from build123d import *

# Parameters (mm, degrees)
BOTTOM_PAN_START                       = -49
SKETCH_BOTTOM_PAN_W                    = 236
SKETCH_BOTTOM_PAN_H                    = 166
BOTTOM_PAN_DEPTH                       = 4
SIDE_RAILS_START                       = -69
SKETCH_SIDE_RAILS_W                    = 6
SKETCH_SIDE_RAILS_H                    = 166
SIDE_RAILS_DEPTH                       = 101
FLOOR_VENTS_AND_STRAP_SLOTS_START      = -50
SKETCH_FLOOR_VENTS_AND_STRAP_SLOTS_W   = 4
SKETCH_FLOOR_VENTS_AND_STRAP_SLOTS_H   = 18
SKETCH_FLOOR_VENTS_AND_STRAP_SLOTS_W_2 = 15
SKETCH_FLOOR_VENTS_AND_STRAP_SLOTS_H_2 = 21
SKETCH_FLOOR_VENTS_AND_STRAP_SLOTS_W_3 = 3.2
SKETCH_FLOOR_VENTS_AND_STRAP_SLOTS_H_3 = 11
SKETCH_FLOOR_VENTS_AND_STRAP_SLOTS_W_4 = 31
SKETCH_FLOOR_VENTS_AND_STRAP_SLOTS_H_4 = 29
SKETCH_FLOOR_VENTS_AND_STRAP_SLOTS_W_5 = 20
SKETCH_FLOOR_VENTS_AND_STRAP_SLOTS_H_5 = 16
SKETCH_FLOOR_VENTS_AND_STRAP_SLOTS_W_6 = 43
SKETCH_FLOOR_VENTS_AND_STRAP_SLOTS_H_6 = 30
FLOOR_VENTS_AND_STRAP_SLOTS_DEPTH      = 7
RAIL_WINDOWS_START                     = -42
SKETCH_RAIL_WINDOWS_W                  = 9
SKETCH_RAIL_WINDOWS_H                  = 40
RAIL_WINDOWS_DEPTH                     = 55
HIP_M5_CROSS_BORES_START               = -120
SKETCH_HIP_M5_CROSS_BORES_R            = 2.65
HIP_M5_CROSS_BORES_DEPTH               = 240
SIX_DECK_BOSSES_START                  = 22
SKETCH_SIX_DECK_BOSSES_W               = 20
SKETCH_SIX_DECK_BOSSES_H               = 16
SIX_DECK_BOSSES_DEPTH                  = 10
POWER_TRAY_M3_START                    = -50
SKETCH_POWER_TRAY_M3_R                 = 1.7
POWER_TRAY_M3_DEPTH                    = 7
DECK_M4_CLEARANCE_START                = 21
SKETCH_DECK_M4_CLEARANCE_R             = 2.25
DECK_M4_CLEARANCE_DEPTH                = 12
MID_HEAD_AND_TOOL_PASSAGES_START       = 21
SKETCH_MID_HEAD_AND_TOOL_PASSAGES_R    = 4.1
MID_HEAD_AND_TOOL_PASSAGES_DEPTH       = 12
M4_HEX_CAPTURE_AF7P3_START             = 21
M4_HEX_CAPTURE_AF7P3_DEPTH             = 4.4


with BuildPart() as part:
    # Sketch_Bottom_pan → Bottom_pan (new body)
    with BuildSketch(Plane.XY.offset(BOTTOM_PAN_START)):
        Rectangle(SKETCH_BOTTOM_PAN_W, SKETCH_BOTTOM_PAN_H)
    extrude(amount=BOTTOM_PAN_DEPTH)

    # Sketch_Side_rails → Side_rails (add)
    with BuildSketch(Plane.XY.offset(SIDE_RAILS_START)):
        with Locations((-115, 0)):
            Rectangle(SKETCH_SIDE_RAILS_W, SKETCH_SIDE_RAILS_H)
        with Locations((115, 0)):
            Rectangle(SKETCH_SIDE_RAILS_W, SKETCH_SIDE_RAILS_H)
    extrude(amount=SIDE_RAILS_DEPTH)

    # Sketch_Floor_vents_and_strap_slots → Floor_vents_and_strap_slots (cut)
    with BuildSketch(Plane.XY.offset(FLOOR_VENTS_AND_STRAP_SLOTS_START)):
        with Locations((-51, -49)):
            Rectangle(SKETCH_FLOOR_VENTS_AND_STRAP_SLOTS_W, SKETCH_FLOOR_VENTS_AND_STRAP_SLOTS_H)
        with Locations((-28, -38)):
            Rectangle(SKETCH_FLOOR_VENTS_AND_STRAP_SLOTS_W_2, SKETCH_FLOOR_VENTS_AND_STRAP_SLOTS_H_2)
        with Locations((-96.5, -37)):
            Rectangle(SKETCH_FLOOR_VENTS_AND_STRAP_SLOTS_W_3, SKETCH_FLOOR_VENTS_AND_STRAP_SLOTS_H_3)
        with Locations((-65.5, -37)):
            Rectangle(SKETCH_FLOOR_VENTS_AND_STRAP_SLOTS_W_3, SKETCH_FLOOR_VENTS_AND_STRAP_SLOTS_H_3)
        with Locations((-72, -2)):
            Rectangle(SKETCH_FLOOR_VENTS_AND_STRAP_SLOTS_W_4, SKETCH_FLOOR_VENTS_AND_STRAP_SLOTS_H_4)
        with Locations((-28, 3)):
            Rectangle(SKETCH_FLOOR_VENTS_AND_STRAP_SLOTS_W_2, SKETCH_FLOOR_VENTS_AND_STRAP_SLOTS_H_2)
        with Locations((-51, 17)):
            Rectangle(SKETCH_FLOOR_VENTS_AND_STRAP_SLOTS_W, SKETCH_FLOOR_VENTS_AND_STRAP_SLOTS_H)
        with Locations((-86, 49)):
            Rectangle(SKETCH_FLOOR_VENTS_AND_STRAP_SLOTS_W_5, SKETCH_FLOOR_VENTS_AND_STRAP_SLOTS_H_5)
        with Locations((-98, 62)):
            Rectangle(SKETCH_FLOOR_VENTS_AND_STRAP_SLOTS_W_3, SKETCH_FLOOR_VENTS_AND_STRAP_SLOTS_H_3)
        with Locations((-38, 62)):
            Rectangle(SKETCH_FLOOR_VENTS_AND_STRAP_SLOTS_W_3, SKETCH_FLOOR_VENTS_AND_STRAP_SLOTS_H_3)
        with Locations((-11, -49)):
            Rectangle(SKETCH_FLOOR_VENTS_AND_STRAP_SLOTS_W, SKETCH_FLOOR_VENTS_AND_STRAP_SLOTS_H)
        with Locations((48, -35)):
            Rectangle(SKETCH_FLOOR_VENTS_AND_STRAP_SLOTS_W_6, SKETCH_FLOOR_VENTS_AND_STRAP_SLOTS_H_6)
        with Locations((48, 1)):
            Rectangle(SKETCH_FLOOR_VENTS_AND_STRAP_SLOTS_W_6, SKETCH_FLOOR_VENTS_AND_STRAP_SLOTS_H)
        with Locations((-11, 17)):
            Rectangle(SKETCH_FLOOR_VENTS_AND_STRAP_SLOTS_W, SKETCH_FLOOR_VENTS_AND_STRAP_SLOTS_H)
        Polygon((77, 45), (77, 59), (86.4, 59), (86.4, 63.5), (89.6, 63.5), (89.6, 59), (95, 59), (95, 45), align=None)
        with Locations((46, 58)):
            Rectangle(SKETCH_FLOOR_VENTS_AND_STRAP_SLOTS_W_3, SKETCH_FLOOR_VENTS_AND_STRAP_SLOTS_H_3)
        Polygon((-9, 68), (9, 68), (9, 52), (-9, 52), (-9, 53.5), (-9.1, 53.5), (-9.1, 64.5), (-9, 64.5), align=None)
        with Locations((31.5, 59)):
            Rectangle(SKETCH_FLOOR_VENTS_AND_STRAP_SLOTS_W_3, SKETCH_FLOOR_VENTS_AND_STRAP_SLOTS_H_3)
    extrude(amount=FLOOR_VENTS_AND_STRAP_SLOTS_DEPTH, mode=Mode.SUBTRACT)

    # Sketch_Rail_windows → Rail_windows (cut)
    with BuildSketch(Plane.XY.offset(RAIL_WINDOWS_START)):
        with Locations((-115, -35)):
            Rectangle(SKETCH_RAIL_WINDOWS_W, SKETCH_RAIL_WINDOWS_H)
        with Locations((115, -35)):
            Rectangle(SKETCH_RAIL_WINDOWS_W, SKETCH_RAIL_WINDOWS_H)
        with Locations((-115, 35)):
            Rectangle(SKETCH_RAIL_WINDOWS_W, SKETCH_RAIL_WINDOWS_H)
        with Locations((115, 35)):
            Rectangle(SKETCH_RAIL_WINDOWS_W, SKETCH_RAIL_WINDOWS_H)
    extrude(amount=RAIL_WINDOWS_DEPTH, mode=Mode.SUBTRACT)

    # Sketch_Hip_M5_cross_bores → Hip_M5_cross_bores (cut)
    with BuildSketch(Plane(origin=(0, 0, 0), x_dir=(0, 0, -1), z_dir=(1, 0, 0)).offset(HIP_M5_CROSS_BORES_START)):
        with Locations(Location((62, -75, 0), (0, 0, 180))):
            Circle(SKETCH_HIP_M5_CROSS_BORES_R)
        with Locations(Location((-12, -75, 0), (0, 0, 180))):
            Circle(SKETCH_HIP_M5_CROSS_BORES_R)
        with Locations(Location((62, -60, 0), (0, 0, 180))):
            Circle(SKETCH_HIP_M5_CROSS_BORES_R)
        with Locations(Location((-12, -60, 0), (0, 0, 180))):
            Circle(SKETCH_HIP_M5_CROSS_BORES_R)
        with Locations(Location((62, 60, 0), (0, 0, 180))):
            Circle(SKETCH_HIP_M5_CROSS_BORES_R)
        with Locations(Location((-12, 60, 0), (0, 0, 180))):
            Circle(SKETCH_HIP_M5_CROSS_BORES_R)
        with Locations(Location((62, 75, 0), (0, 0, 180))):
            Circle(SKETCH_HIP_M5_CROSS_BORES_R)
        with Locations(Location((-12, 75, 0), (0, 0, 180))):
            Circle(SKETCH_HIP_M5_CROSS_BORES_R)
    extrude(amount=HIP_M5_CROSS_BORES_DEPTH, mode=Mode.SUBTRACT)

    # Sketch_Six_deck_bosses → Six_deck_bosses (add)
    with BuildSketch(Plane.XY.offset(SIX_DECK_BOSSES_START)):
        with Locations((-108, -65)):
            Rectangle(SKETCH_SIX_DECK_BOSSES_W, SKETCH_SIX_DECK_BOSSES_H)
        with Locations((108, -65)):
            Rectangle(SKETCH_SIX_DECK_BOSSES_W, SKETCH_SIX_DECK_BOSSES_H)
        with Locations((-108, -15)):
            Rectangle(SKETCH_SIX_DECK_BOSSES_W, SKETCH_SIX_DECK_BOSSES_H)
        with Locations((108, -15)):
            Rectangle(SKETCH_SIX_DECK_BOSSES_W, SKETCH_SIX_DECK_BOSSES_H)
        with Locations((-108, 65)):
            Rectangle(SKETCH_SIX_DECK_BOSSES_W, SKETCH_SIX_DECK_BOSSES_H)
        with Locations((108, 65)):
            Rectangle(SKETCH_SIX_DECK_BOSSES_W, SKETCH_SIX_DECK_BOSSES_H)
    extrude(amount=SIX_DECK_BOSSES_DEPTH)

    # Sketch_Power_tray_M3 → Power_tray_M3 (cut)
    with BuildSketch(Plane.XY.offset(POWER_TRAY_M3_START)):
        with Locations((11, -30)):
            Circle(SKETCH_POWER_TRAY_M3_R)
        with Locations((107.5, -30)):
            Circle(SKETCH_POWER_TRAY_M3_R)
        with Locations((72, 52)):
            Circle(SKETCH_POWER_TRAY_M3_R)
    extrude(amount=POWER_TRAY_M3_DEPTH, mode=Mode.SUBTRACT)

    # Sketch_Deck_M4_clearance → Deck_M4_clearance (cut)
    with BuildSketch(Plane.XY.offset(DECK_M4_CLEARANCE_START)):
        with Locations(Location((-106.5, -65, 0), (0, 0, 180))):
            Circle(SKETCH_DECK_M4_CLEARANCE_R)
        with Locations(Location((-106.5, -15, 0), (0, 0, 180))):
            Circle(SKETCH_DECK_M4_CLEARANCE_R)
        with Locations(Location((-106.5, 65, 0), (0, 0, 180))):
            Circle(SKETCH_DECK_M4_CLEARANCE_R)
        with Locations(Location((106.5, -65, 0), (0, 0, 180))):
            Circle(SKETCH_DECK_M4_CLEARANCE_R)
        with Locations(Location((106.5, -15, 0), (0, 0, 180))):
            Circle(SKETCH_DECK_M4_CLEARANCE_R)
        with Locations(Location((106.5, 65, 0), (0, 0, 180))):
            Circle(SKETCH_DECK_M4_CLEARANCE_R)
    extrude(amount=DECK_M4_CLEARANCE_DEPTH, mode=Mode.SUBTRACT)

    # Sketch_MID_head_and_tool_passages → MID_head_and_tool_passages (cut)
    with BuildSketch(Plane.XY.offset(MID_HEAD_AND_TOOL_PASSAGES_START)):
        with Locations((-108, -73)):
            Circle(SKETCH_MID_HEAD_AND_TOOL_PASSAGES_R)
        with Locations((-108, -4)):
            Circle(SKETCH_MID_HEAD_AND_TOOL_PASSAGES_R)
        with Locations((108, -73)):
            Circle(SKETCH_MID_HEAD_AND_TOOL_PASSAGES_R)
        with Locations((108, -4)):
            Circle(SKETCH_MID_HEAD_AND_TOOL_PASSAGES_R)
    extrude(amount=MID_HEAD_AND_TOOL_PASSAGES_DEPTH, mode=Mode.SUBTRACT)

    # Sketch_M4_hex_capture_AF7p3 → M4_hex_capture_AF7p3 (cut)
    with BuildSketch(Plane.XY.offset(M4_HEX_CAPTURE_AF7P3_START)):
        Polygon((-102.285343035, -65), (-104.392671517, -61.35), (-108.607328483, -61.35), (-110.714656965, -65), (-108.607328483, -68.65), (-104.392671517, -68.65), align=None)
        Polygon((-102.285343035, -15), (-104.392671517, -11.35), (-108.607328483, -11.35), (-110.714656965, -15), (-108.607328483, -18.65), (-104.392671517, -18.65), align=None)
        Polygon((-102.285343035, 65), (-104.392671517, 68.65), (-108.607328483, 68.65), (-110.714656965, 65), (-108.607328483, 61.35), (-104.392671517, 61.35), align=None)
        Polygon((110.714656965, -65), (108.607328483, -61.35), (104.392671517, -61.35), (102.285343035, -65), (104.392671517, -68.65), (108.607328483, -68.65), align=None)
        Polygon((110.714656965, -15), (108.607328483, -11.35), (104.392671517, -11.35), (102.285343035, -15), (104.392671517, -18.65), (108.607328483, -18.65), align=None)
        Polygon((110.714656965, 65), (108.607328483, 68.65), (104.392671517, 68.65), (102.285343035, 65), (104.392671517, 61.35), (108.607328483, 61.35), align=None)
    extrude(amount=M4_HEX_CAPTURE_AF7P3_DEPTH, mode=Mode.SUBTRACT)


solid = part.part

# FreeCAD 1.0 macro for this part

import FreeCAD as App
import Part
import Sketcher

V = App.Vector
Q = App.Units.Quantity


def add_polygon(sketch, points):
    """Adds a closed chain of lines whose ends are joined by coincident constraints."""
    first, n = sketch.GeometryCount, len(points)
    for a, b in zip(points, points[1:] + points[:1]):
        sketch.addGeometry(Part.LineSegment(App.Vector(*a, 0), App.Vector(*b, 0)), False)
    for i in range(n):
        sketch.addConstraint(Sketcher.Constraint("Coincident", first + i, 2, first + (i + 1) % n, 1))

doc = App.newDocument("Part")
body = doc.addObject("PartDesign::Body", "Body")

sketch1 = body.newObject("Sketcher::SketchObject", "Sketch")
sketch1.AttachmentSupport = (doc.getObject("XY_Plane"), [""])
sketch1.MapMode = "FlatFace"
sketch1.AttachmentOffset = App.Placement(V(0, 0, -49), App.Rotation())
add_polygon(sketch1, [(-118, 83), (-118, -83), (118, -83), (118, 83)])
sketch1.addConstraint([
    Sketcher.Constraint("Vertical", 0),
    Sketcher.Constraint("Horizontal", 1),
    Sketcher.Constraint("Vertical", 2),
    Sketcher.Constraint("Horizontal", 3),
    Sketcher.Constraint("Symmetric", 0, 2, 2, 2, -1, 1),
    Sketcher.Constraint("DistanceX", 1, 1, 1, 2, Q("236 mm")),
    Sketcher.Constraint("DistanceY", 0, 2, 0, 1, Q("166 mm")),
])
pad1 = body.newObject("PartDesign::Pad", "Pad")
pad1.Profile = sketch1
pad1.Length = 4

sketch2 = body.newObject("Sketcher::SketchObject", "Sketch001")
sketch2.AttachmentSupport = (doc.getObject("XY_Plane"), [""])
sketch2.MapMode = "FlatFace"
sketch2.AttachmentOffset = App.Placement(V(0, 0, -69), App.Rotation())
add_polygon(sketch2, [(-118, 83), (-118, -83), (-112, -83), (-112, 83)])
add_polygon(sketch2, [(112, 83), (112, -83), (118, -83), (118, 83)])
sketch2.addConstraint([
    Sketcher.Constraint("Vertical", 0),
    Sketcher.Constraint("Horizontal", 1),
    Sketcher.Constraint("Vertical", 2),
    Sketcher.Constraint("Horizontal", 3),
    Sketcher.Constraint("Vertical", 4),
    Sketcher.Constraint("Horizontal", 5),
    Sketcher.Constraint("Vertical", 6),
    Sketcher.Constraint("Horizontal", 7),
    Sketcher.Constraint("Symmetric", 2, 2, 4, 2, -1, 1),
    Sketcher.Constraint("Symmetric", 0, 2, 6, 2, -1, 1),
    Sketcher.Constraint("Horizontal", 1, 2, 4, 2),
    Sketcher.Constraint("DistanceX", 1, 1, 1, 2, Q("6 mm")),
    Sketcher.Constraint("DistanceY", 0, 2, 0, 1, Q("166 mm")),
    Sketcher.Constraint("DistanceX", 0, 2, -1, 1, Q("118 mm")),
])
pad2 = body.newObject("PartDesign::Pad", "Pad001")
pad2.Profile = sketch2
pad2.Length = 101

sketch3 = body.newObject("Sketcher::SketchObject", "Sketch002")
sketch3.AttachmentSupport = (doc.getObject("XY_Plane"), [""])
sketch3.MapMode = "FlatFace"
sketch3.AttachmentOffset = App.Placement(V(0, 0, -50), App.Rotation())
add_polygon(sketch3, [(-53, -40), (-53, -58), (-49, -58), (-49, -40)])
add_polygon(sketch3, [(-35.5, -27.5), (-35.5, -48.5), (-20.5, -48.5), (-20.5, -27.5)])
add_polygon(sketch3, [(-98.1, -31.5), (-98.1, -42.5), (-94.9, -42.5), (-94.9, -31.5)])
add_polygon(sketch3, [(-67.1, -31.5), (-67.1, -42.5), (-63.9, -42.5), (-63.9, -31.5)])
add_polygon(sketch3, [(-87.5, 12.5), (-87.5, -16.5), (-56.5, -16.5), (-56.5, 12.5)])
add_polygon(sketch3, [(-35.5, 13.5), (-35.5, -7.5), (-20.5, -7.5), (-20.5, 13.5)])
add_polygon(sketch3, [(-53, 26), (-53, 8), (-49, 8), (-49, 26)])
add_polygon(sketch3, [(-96, 57), (-96, 41), (-76, 41), (-76, 57)])
add_polygon(sketch3, [(-99.6, 67.5), (-99.6, 56.5), (-96.4, 56.5), (-96.4, 67.5)])
add_polygon(sketch3, [(-39.6, 67.5), (-39.6, 56.5), (-36.4, 56.5), (-36.4, 67.5)])
add_polygon(sketch3, [(-13, -40), (-13, -58), (-9, -58), (-9, -40)])
add_polygon(sketch3, [(26.5, -20), (26.5, -50), (69.5, -50), (69.5, -20)])
add_polygon(sketch3, [(26.5, 10), (26.5, -8), (69.5, -8), (69.5, 10)])
add_polygon(sketch3, [(-13, 26), (-13, 8), (-9, 8), (-9, 26)])
add_polygon(sketch3, [(77, 59), (77, 45), (95, 45), (95, 59), (89.6, 59), (89.6, 63.5), (86.4, 63.5), (86.4, 59)])
add_polygon(sketch3, [(44.4, 63.5), (44.4, 52.5), (47.6, 52.5), (47.6, 63.5)])
add_polygon(sketch3, [(9, 68), (-9, 68), (-9, 64.5), (-9.1, 64.5), (-9.1, 53.5), (-9, 53.5), (-9, 52), (9, 52)])
add_polygon(sketch3, [(29.9, 64.5), (29.9, 53.5), (33.1, 53.5), (33.1, 64.5)])
sketch3.addConstraint([
    Sketcher.Constraint("Vertical", 0),
    Sketcher.Constraint("Horizontal", 1),
    Sketcher.Constraint("Vertical", 2),
    Sketcher.Constraint("Horizontal", 3),
    Sketcher.Constraint("Vertical", 4),
    Sketcher.Constraint("Horizontal", 5),
    Sketcher.Constraint("Vertical", 6),
    Sketcher.Constraint("Horizontal", 7),
    Sketcher.Constraint("Vertical", 8),
    Sketcher.Constraint("Horizontal", 9),
    Sketcher.Constraint("Vertical", 10),
    Sketcher.Constraint("Horizontal", 11),
    Sketcher.Constraint("Vertical", 12),
    Sketcher.Constraint("Horizontal", 13),
    Sketcher.Constraint("Vertical", 14),
    Sketcher.Constraint("Horizontal", 15),
    Sketcher.Constraint("Vertical", 16),
    Sketcher.Constraint("Horizontal", 17),
    Sketcher.Constraint("Vertical", 18),
    Sketcher.Constraint("Horizontal", 19),
    Sketcher.Constraint("Vertical", 20),
    Sketcher.Constraint("Horizontal", 21),
    Sketcher.Constraint("Vertical", 22),
    Sketcher.Constraint("Horizontal", 23),
    Sketcher.Constraint("Vertical", 24),
    Sketcher.Constraint("Horizontal", 25),
    Sketcher.Constraint("Vertical", 26),
    Sketcher.Constraint("Horizontal", 27),
    Sketcher.Constraint("Vertical", 28),
    Sketcher.Constraint("Horizontal", 29),
    Sketcher.Constraint("Vertical", 30),
    Sketcher.Constraint("Horizontal", 31),
    Sketcher.Constraint("Vertical", 32),
    Sketcher.Constraint("Horizontal", 33),
    Sketcher.Constraint("Vertical", 34),
    Sketcher.Constraint("Horizontal", 35),
    Sketcher.Constraint("Vertical", 36),
    Sketcher.Constraint("Horizontal", 37),
    Sketcher.Constraint("Vertical", 38),
    Sketcher.Constraint("Horizontal", 39),
    Sketcher.Constraint("Vertical", 40),
    Sketcher.Constraint("Horizontal", 41),
    Sketcher.Constraint("Vertical", 42),
    Sketcher.Constraint("Horizontal", 43),
    Sketcher.Constraint("Vertical", 44),
    Sketcher.Constraint("Horizontal", 45),
    Sketcher.Constraint("Vertical", 46),
    Sketcher.Constraint("Horizontal", 47),
    Sketcher.Constraint("Vertical", 48),
    Sketcher.Constraint("Horizontal", 49),
    Sketcher.Constraint("Vertical", 50),
    Sketcher.Constraint("Horizontal", 51),
    Sketcher.Constraint("Vertical", 52),
    Sketcher.Constraint("Horizontal", 53),
    Sketcher.Constraint("Vertical", 54),
    Sketcher.Constraint("Horizontal", 55),
    Sketcher.Constraint("Vertical", 56),
    Sketcher.Constraint("Horizontal", 57),
    Sketcher.Constraint("Vertical", 58),
    Sketcher.Constraint("Horizontal", 59),
    Sketcher.Constraint("Vertical", 60),
    Sketcher.Constraint("Horizontal", 61),
    Sketcher.Constraint("Vertical", 62),
    Sketcher.Constraint("Horizontal", 63),
    Sketcher.Constraint("Vertical", 64),
    Sketcher.Constraint("Horizontal", 65),
    Sketcher.Constraint("Vertical", 66),
    Sketcher.Constraint("Horizontal", 67),
    Sketcher.Constraint("Horizontal", 68),
    Sketcher.Constraint("Vertical", 69),
    Sketcher.Constraint("Horizontal", 70),
    Sketcher.Constraint("Vertical", 71),
    Sketcher.Constraint("Horizontal", 72),
    Sketcher.Constraint("Vertical", 73),
    Sketcher.Constraint("Horizontal", 74),
    Sketcher.Constraint("Vertical", 75),
    Sketcher.Constraint("Vertical", 76),
    Sketcher.Constraint("Horizontal", 77),
    Sketcher.Constraint("Vertical", 78),
    Sketcher.Constraint("Horizontal", 79),
    Sketcher.Constraint("Horizontal", 9, 2, 12, 2),
    Sketcher.Constraint("Horizontal", 11, 2, 14, 2),
    Sketcher.Constraint("Horizontal", 33, 2, 36, 2),
    Sketcher.Constraint("Horizontal", 35, 2, 38, 2),
    Sketcher.Constraint("Horizontal", 1, 2, 40, 2),
    Sketcher.Constraint("Horizontal", 3, 2, 42, 2),
    Sketcher.Constraint("Horizontal", 25, 2, 52, 2),
    Sketcher.Constraint("Horizontal", 27, 2, 54, 2),
    Sketcher.Constraint("Horizontal", 59, 2, 62, 2),
    Sketcher.Constraint("Horizontal", 61, 2, 66, 2),
    Sketcher.Constraint("Horizontal", 72, 2, 76, 2),
    Sketcher.Constraint("Horizontal", 70, 2, 78, 2),
    Sketcher.Constraint("Vertical", 7, 2, 20, 2),
    Sketcher.Constraint("Vertical", 6, 2, 21, 2),
    Sketcher.Constraint("Vertical", 3, 2, 24, 2),
    Sketcher.Constraint("Vertical", 2, 2, 25, 2),
    Sketcher.Constraint("Vertical", 47, 2, 48, 2),
    Sketcher.Constraint("Vertical", 46, 2, 49, 2),
    Sketcher.Constraint("Vertical", 43, 2, 52, 2),
    Sketcher.Constraint("Vertical", 42, 2, 53, 2),
    Sketcher.Constraint("Vertical", 54, 2, 68, 2),
    Sketcher.Constraint("Vertical", 69, 2, 72, 2),
    Sketcher.Constraint("Equal", 11, 13),
    Sketcher.Constraint("Equal", 15, 33),
    Sketcher.Constraint("Equal", 35, 37),
    Sketcher.Constraint("Equal", 27, 41),
    Sketcher.Constraint("Equal", 39, 61),
    Sketcher.Constraint("Equal", 61, 65),
    Sketcher.Constraint("Equal", 57, 68),
    Sketcher.Constraint("Equal", 67, 77),
    Sketcher.Constraint("Equal", 74, 0),
    Sketcher.Constraint("Equal", 6, 20),
    Sketcher.Constraint("Equal", 2, 24),
    Sketcher.Constraint("Equal", 14, 32),
    Sketcher.Constraint("Equal", 42, 48),
    Sketcher.Constraint("Equal", 38, 64),
    Sketcher.Constraint("Equal", 66, 71),
    Sketcher.Constraint("Equal", 30, 75),
    Sketcher.Constraint("DistanceX", 1, 1, 1, 2, Q("4 mm")),
    Sketcher.Constraint("DistanceX", 5, 1, 5, 2, Q("15 mm")),
    Sketcher.Constraint("DistanceX", 17, 1, 17, 2, Q("31 mm")),
    Sketcher.Constraint("DistanceX", 29, 1, 29, 2, Q("20 mm")),
    Sketcher.Constraint("DistanceX", 45, 1, 45, 2, Q("43 mm")),
    Sketcher.Constraint("DistanceX", 57, 1, 57, 2, Q("18 mm")),
    Sketcher.Constraint("DistanceY", 4, 2, 4, 1, Q("21 mm")),
    Sketcher.Constraint("DistanceY", 8, 2, 8, 1, Q("11 mm")),
    Sketcher.Constraint("DistanceY", 16, 2, 16, 1, Q("29 mm")),
    Sketcher.Constraint("DistanceY", 28, 2, 28, 1, Q("16 mm")),
    Sketcher.Constraint("DistanceY", 44, 2, 44, 1, Q("30 mm")),
    Sketcher.Constraint("DistanceY", 56, 2, 56, 1, Q("14 mm")),
    Sketcher.Constraint("DistanceX", 9, 1, 9, 2, Q("3.2 mm")),
    Sketcher.Constraint("DistanceX", 59, 2, 59, 1, Q("5.4 mm")),
    Sketcher.Constraint("DistanceX", 70, 2, 70, 1, Q("0.1 mm")),
    Sketcher.Constraint("DistanceY", 60, 1, 60, 2, Q("4.5 mm")),
    Sketcher.Constraint("DistanceY", 69, 2, 69, 1, Q("3.5 mm")),
    Sketcher.Constraint("DistanceX", 0, 2, -1, 1, Q("53 mm")),
    Sketcher.Constraint("DistanceY", 0, 2, -1, 1, Q("58 mm")),
    Sketcher.Constraint("DistanceY", -1, 1, 24, 2, Q("8 mm")),
    Sketcher.Constraint("DistanceX", 28, 2, -1, 1, Q("96 mm")),
    Sketcher.Constraint("DistanceY", -1, 1, 28, 2, Q("41 mm")),
    Sketcher.Constraint("DistanceX", 40, 2, -1, 1, Q("13 mm")),
    Sketcher.Constraint("DistanceY", 44, 2, -1, 1, Q("50 mm")),
    Sketcher.Constraint("DistanceY", 48, 2, -1, 1, Q("8 mm")),
    Sketcher.Constraint("DistanceX", -1, 1, 56, 2, Q("77 mm")),
    Sketcher.Constraint("DistanceY", -1, 1, 56, 2, Q("45 mm")),
    Sketcher.Constraint("DistanceY", -1, 1, 68, 2, Q("68 mm")),
    Sketcher.Constraint("DistanceX", 4, 2, -1, 1, Q("35.5 mm")),
    Sketcher.Constraint("DistanceY", 4, 2, -1, 1, Q("48.5 mm")),
    Sketcher.Constraint("DistanceX", 8, 2, -1, 1, Q("98.1 mm")),
    Sketcher.Constraint("DistanceY", 8, 2, -1, 1, Q("42.5 mm")),
    Sketcher.Constraint("DistanceX", 12, 2, -1, 1, Q("67.1 mm")),
    Sketcher.Constraint("DistanceX", 16, 2, -1, 1, Q("87.5 mm")),
    Sketcher.Constraint("DistanceY", 16, 2, -1, 1, Q("16.5 mm")),
    Sketcher.Constraint("DistanceY", 20, 2, -1, 1, Q("7.5 mm")),
    Sketcher.Constraint("DistanceX", 32, 2, -1, 1, Q("99.6 mm")),
    Sketcher.Constraint("DistanceY", -1, 1, 32, 2, Q("56.5 mm")),
    Sketcher.Constraint("DistanceX", 36, 2, -1, 1, Q("39.6 mm")),
    Sketcher.Constraint("DistanceX", -1, 1, 44, 2, Q("26.5 mm")),
    Sketcher.Constraint("DistanceX", -1, 1, 64, 2, Q("44.4 mm")),
    Sketcher.Constraint("DistanceX", -1, 1, 76, 2, Q("29.9 mm")),
])
pocket1 = body.newObject("PartDesign::Pocket", "Pocket")
pocket1.Profile = sketch3
pocket1.Length = 7
pocket1.Reversed = True

sketch4 = body.newObject("Sketcher::SketchObject", "Sketch003")
sketch4.AttachmentSupport = (doc.getObject("XY_Plane"), [""])
sketch4.MapMode = "FlatFace"
sketch4.AttachmentOffset = App.Placement(V(0, 0, -42), App.Rotation())
add_polygon(sketch4, [(-119.5, -15), (-119.5, -55), (-110.5, -55), (-110.5, -15)])
add_polygon(sketch4, [(110.5, -15), (110.5, -55), (119.5, -55), (119.5, -15)])
add_polygon(sketch4, [(-119.5, 55), (-119.5, 15), (-110.5, 15), (-110.5, 55)])
add_polygon(sketch4, [(110.5, 55), (110.5, 15), (119.5, 15), (119.5, 55)])
sketch4.addConstraint([
    Sketcher.Constraint("Vertical", 0),
    Sketcher.Constraint("Horizontal", 1),
    Sketcher.Constraint("Vertical", 2),
    Sketcher.Constraint("Horizontal", 3),
    Sketcher.Constraint("Vertical", 4),
    Sketcher.Constraint("Horizontal", 5),
    Sketcher.Constraint("Vertical", 6),
    Sketcher.Constraint("Horizontal", 7),
    Sketcher.Constraint("Vertical", 8),
    Sketcher.Constraint("Horizontal", 9),
    Sketcher.Constraint("Vertical", 10),
    Sketcher.Constraint("Horizontal", 11),
    Sketcher.Constraint("Vertical", 12),
    Sketcher.Constraint("Horizontal", 13),
    Sketcher.Constraint("Vertical", 14),
    Sketcher.Constraint("Horizontal", 15),
    Sketcher.Constraint("Symmetric", 6, 2, 8, 2, -1, 1),
    Sketcher.Constraint("Symmetric", 4, 2, 10, 2, -1, 1),
    Sketcher.Constraint("Symmetric", 2, 2, 12, 2, -1, 1),
    Sketcher.Constraint("Symmetric", 0, 2, 14, 2, -1, 1),
    Sketcher.Constraint("Symmetric", 1, 2, 4, 2, -2),
    Sketcher.Constraint("Symmetric", 3, 2, 6, 2, -2),
    Sketcher.Constraint("DistanceX", 1, 1, 1, 2, Q("9 mm")),
    Sketcher.Constraint("DistanceY", 0, 2, 0, 1, Q("40 mm")),
    Sketcher.Constraint("DistanceY", 0, 2, -1, 1, Q("55 mm")),
    Sketcher.Constraint("DistanceX", 1, 2, 4, 2, Q("221 mm")),
])
pocket2 = body.newObject("PartDesign::Pocket", "Pocket001")
pocket2.Profile = sketch4
pocket2.Length = 55
pocket2.Reversed = True

sketch5 = body.newObject("Sketcher::SketchObject", "Sketch004")
sketch5.AttachmentSupport = (doc.getObject("YZ_Plane"), [""])
sketch5.MapMode = "FlatFace"
sketch5.AttachmentOffset = App.Placement(V(0, 0, -120), App.Rotation())
sketch5.addGeometry([
    Part.Circle(V(-75, -62, 0), V(0, 0, 1), 2.65),
    Part.Circle(V(-75, 12, 0), V(0, 0, 1), 2.65),
    Part.Circle(V(-60, -62, 0), V(0, 0, 1), 2.65),
    Part.Circle(V(-60, 12, 0), V(0, 0, 1), 2.65),
    Part.Circle(V(60, -62, 0), V(0, 0, 1), 2.65),
    Part.Circle(V(60, 12, 0), V(0, 0, 1), 2.65),
    Part.Circle(V(75, -62, 0), V(0, 0, 1), 2.65),
    Part.Circle(V(75, 12, 0), V(0, 0, 1), 2.65),
], False)
sketch5.addConstraint([
    Sketcher.Constraint("Equal", 0, 1),
    Sketcher.Constraint("Equal", 1, 2),
    Sketcher.Constraint("Equal", 2, 3),
    Sketcher.Constraint("Equal", 3, 4),
    Sketcher.Constraint("Equal", 4, 5),
    Sketcher.Constraint("Equal", 5, 6),
    Sketcher.Constraint("Equal", 6, 7),
    Sketcher.Constraint("Symmetric", 2, 3, 4, 3, -2),
    Sketcher.Constraint("Symmetric", 3, 3, 5, 3, -2),
    Sketcher.Constraint("Symmetric", 0, 3, 6, 3, -2),
    Sketcher.Constraint("Symmetric", 1, 3, 7, 3, -2),
    Sketcher.Constraint("Horizontal", 0, 3, 2, 3),
    Sketcher.Constraint("Horizontal", 1, 3, 3, 3),
    Sketcher.Constraint("Vertical", 0, 3, 1, 3),
    Sketcher.Constraint("Vertical", 2, 3, 3, 3),
    Sketcher.Constraint("Diameter", 0, Q("5.3 mm")),
    Sketcher.Constraint("DistanceX", 0, 3, -1, 1, Q("75 mm")),
    Sketcher.Constraint("DistanceY", 0, 3, -1, 1, Q("62 mm")),
    Sketcher.Constraint("DistanceY", -1, 1, 1, 3, Q("12 mm")),
    Sketcher.Constraint("DistanceX", 2, 3, -1, 1, Q("60 mm")),
])
pocket3 = body.newObject("PartDesign::Pocket", "Pocket002")
pocket3.Profile = sketch5
pocket3.Length = 240
pocket3.Reversed = True

sketch6 = body.newObject("Sketcher::SketchObject", "Sketch005")
sketch6.AttachmentSupport = (doc.getObject("XY_Plane"), [""])
sketch6.MapMode = "FlatFace"
sketch6.AttachmentOffset = App.Placement(V(0, 0, 22), App.Rotation())
add_polygon(sketch6, [(-118, -57), (-118, -73), (-98, -73), (-98, -57)])
add_polygon(sketch6, [(98, -57), (98, -73), (118, -73), (118, -57)])
add_polygon(sketch6, [(-118, -7), (-118, -23), (-98, -23), (-98, -7)])
add_polygon(sketch6, [(98, -7), (98, -23), (118, -23), (118, -7)])
add_polygon(sketch6, [(-118, 73), (-118, 57), (-98, 57), (-98, 73)])
add_polygon(sketch6, [(98, 73), (98, 57), (118, 57), (118, 73)])
sketch6.addConstraint([
    Sketcher.Constraint("Vertical", 0),
    Sketcher.Constraint("Horizontal", 1),
    Sketcher.Constraint("Vertical", 2),
    Sketcher.Constraint("Horizontal", 3),
    Sketcher.Constraint("Vertical", 4),
    Sketcher.Constraint("Horizontal", 5),
    Sketcher.Constraint("Vertical", 6),
    Sketcher.Constraint("Horizontal", 7),
    Sketcher.Constraint("Vertical", 8),
    Sketcher.Constraint("Horizontal", 9),
    Sketcher.Constraint("Vertical", 10),
    Sketcher.Constraint("Horizontal", 11),
    Sketcher.Constraint("Vertical", 12),
    Sketcher.Constraint("Horizontal", 13),
    Sketcher.Constraint("Vertical", 14),
    Sketcher.Constraint("Horizontal", 15),
    Sketcher.Constraint("Vertical", 16),
    Sketcher.Constraint("Horizontal", 17),
    Sketcher.Constraint("Vertical", 18),
    Sketcher.Constraint("Horizontal", 19),
    Sketcher.Constraint("Vertical", 20),
    Sketcher.Constraint("Horizontal", 21),
    Sketcher.Constraint("Vertical", 22),
    Sketcher.Constraint("Horizontal", 23),
    Sketcher.Constraint("Symmetric", 6, 2, 16, 2, -1, 1),
    Sketcher.Constraint("Symmetric", 4, 2, 18, 2, -1, 1),
    Sketcher.Constraint("Symmetric", 2, 2, 20, 2, -1, 1),
    Sketcher.Constraint("Symmetric", 0, 2, 22, 2, -1, 1),
    Sketcher.Constraint("Symmetric", 1, 2, 4, 2, -2),
    Sketcher.Constraint("Symmetric", 3, 2, 6, 2, -2),
    Sketcher.Constraint("Symmetric", 9, 2, 12, 2, -2),
    Sketcher.Constraint("Symmetric", 11, 2, 14, 2, -2),
    Sketcher.Constraint("Vertical", 3, 2, 8, 2),
    Sketcher.Constraint("Vertical", 2, 2, 9, 2),
    Sketcher.Constraint("Equal", 6, 8),
    Sketcher.Constraint("DistanceX", 1, 1, 1, 2, Q("20 mm")),
    Sketcher.Constraint("DistanceY", 0, 2, 0, 1, Q("16 mm")),
    Sketcher.Constraint("DistanceX", 0, 2, -1, 1, Q("118 mm")),
    Sketcher.Constraint("DistanceY", 0, 2, -1, 1, Q("73 mm")),
    Sketcher.Constraint("DistanceY", 8, 2, -1, 1, Q("23 mm")),
])
pad3 = body.newObject("PartDesign::Pad", "Pad002")
pad3.Profile = sketch6
pad3.Length = 10

sketch7 = body.newObject("Sketcher::SketchObject", "Sketch006")
sketch7.AttachmentSupport = (doc.getObject("XY_Plane"), [""])
sketch7.MapMode = "FlatFace"
sketch7.AttachmentOffset = App.Placement(V(0, 0, -50), App.Rotation())
sketch7.addGeometry([
    Part.Circle(V(11, -30, 0), V(0, 0, 1), 1.7),
    Part.Circle(V(107.5, -30, 0), V(0, 0, 1), 1.7),
    Part.Circle(V(72, 52, 0), V(0, 0, 1), 1.7),
], False)
sketch7.addConstraint([
    Sketcher.Constraint("Equal", 0, 1),
    Sketcher.Constraint("Equal", 1, 2),
    Sketcher.Constraint("Horizontal", 0, 3, 1, 3),
    Sketcher.Constraint("Diameter", 0, Q("3.4 mm")),
    Sketcher.Constraint("DistanceX", -1, 1, 0, 3, Q("11 mm")),
    Sketcher.Constraint("DistanceY", 0, 3, -1, 1, Q("30 mm")),
    Sketcher.Constraint("DistanceX", -1, 1, 2, 3, Q("72 mm")),
    Sketcher.Constraint("DistanceY", -1, 1, 2, 3, Q("52 mm")),
    Sketcher.Constraint("DistanceX", -1, 1, 1, 3, Q("107.5 mm")),
])
pocket4 = body.newObject("PartDesign::Pocket", "Pocket003")
pocket4.Profile = sketch7
pocket4.Length = 7
pocket4.Reversed = True

sketch8 = body.newObject("Sketcher::SketchObject", "Sketch007")
sketch8.AttachmentSupport = (doc.getObject("XY_Plane"), [""])
sketch8.MapMode = "FlatFace"
sketch8.AttachmentOffset = App.Placement(V(0, 0, 21), App.Rotation())
sketch8.addGeometry([
    Part.Circle(V(-106.5, -65, 0), V(0, 0, 1), 2.25),
    Part.Circle(V(-106.5, -15, 0), V(0, 0, 1), 2.25),
    Part.Circle(V(-106.5, 65, 0), V(0, 0, 1), 2.25),
    Part.Circle(V(106.5, -65, 0), V(0, 0, 1), 2.25),
    Part.Circle(V(106.5, -15, 0), V(0, 0, 1), 2.25),
    Part.Circle(V(106.5, 65, 0), V(0, 0, 1), 2.25),
], False)
sketch8.addConstraint([
    Sketcher.Constraint("Equal", 0, 1),
    Sketcher.Constraint("Equal", 1, 2),
    Sketcher.Constraint("Equal", 2, 3),
    Sketcher.Constraint("Equal", 3, 4),
    Sketcher.Constraint("Equal", 4, 5),
    Sketcher.Constraint("Symmetric", 2, 3, 3, 3, -1, 1),
    Sketcher.Constraint("Symmetric", 0, 3, 5, 3, -1, 1),
    Sketcher.Constraint("Symmetric", 0, 3, 3, 3, -2),
    Sketcher.Constraint("Symmetric", 1, 3, 4, 3, -2),
    Sketcher.Constraint("Vertical", 0, 3, 1, 3),
    Sketcher.Constraint("Diameter", 0, Q("4.5 mm")),
    Sketcher.Constraint("DistanceY", 0, 3, -1, 1, Q("65 mm")),
    Sketcher.Constraint("DistanceY", 1, 3, -1, 1, Q("15 mm")),
    Sketcher.Constraint("DistanceX", 0, 3, 3, 3, Q("213 mm")),
])
pocket5 = body.newObject("PartDesign::Pocket", "Pocket004")
pocket5.Profile = sketch8
pocket5.Length = 12
pocket5.Reversed = True

sketch9 = body.newObject("Sketcher::SketchObject", "Sketch008")
sketch9.AttachmentSupport = (doc.getObject("XY_Plane"), [""])
sketch9.MapMode = "FlatFace"
sketch9.AttachmentOffset = App.Placement(V(0, 0, 21), App.Rotation())
sketch9.addGeometry([
    Part.Circle(V(-108, -73, 0), V(0, 0, 1), 4.1),
    Part.Circle(V(-108, -4, 0), V(0, 0, 1), 4.1),
    Part.Circle(V(108, -73, 0), V(0, 0, 1), 4.1),
    Part.Circle(V(108, -4, 0), V(0, 0, 1), 4.1),
], False)
sketch9.addConstraint([
    Sketcher.Constraint("Equal", 0, 1),
    Sketcher.Constraint("Equal", 1, 2),
    Sketcher.Constraint("Equal", 2, 3),
    Sketcher.Constraint("Symmetric", 0, 3, 2, 3, -2),
    Sketcher.Constraint("Symmetric", 1, 3, 3, 3, -2),
    Sketcher.Constraint("Vertical", 0, 3, 1, 3),
    Sketcher.Constraint("Diameter", 0, Q("8.2 mm")),
    Sketcher.Constraint("DistanceX", 0, 3, -1, 1, Q("108 mm")),
    Sketcher.Constraint("DistanceY", 0, 3, -1, 1, Q("73 mm")),
    Sketcher.Constraint("DistanceY", 1, 3, -1, 1, Q("4 mm")),
])
pocket6 = body.newObject("PartDesign::Pocket", "Pocket005")
pocket6.Profile = sketch9
pocket6.Length = 12
pocket6.Reversed = True

sketch10 = body.newObject("Sketcher::SketchObject", "Sketch009")
sketch10.AttachmentSupport = (doc.getObject("XY_Plane"), [""])
sketch10.MapMode = "FlatFace"
sketch10.AttachmentOffset = App.Placement(V(0, 0, 21), App.Rotation())
add_polygon(sketch10, [(-102.285343, -65), (-104.392672, -61.35), (-108.607328, -61.35), (-110.714657, -65), (-108.607328, -68.65), (-104.392672, -68.65)])
add_polygon(sketch10, [(-102.285343, -15), (-104.392672, -11.35), (-108.607328, -11.35), (-110.714657, -15), (-108.607328, -18.65), (-104.392672, -18.65)])
add_polygon(sketch10, [(-102.285343, 65), (-104.392672, 68.65), (-108.607328, 68.65), (-110.714657, 65), (-108.607328, 61.35), (-104.392672, 61.35)])
add_polygon(sketch10, [(110.714657, -65), (108.607328, -61.35), (104.392672, -61.35), (102.285343, -65), (104.392672, -68.65), (108.607328, -68.65)])
add_polygon(sketch10, [(110.714657, -15), (108.607328, -11.35), (104.392672, -11.35), (102.285343, -15), (104.392672, -18.65), (108.607328, -18.65)])
add_polygon(sketch10, [(110.714657, 65), (108.607328, 68.65), (104.392672, 68.65), (102.285343, 65), (104.392672, 61.35), (108.607328, 61.35)])
sketch10.addConstraint([
    Sketcher.Constraint("Horizontal", 1),
    Sketcher.Constraint("Horizontal", 4),
    Sketcher.Constraint("Horizontal", 7),
    Sketcher.Constraint("Horizontal", 10),
    Sketcher.Constraint("Horizontal", 13),
    Sketcher.Constraint("Horizontal", 16),
    Sketcher.Constraint("Horizontal", 19),
    Sketcher.Constraint("Horizontal", 22),
    Sketcher.Constraint("Horizontal", 25),
    Sketcher.Constraint("Horizontal", 28),
    Sketcher.Constraint("Horizontal", 31),
    Sketcher.Constraint("Horizontal", 34),
    Sketcher.Constraint("Symmetric", 15, 2, 18, 2, -1, 1),
    Sketcher.Constraint("Symmetric", 17, 2, 20, 2, -1, 1),
    Sketcher.Constraint("Symmetric", 12, 2, 21, 2, -1, 1),
    Sketcher.Constraint("Symmetric", 14, 2, 23, 2, -1, 1),
    Sketcher.Constraint("Symmetric", 3, 2, 30, 2, -1, 1),
    Sketcher.Constraint("Symmetric", 5, 2, 32, 2, -1, 1),
    Sketcher.Constraint("Symmetric", 0, 2, 33, 2, -1, 1),
    Sketcher.Constraint("Symmetric", 2, 2, 35, 2, -1, 1),
    Sketcher.Constraint("Symmetric", 1, 2, 18, 2, -2),
    Sketcher.Constraint("Symmetric", 5, 2, 20, 2, -2),
    Sketcher.Constraint("Symmetric", 4, 2, 21, 2, -2),
    Sketcher.Constraint("Symmetric", 2, 2, 23, 2, -2),
    Sketcher.Constraint("Symmetric", 7, 2, 24, 2, -2),
    Sketcher.Constraint("Symmetric", 11, 2, 26, 2, -2),
    Sketcher.Constraint("Symmetric", 10, 2, 27, 2, -2),
    Sketcher.Constraint("Symmetric", 8, 2, 29, 2, -2),
    Sketcher.Constraint("Parallel", 0, 3),
    Sketcher.Constraint("Parallel", 2, 5),
    Sketcher.Constraint("Parallel", 3, 6),
    Sketcher.Constraint("Parallel", 5, 8),
    Sketcher.Constraint("Parallel", 6, 9),
    Sketcher.Constraint("Parallel", 8, 11),
    Sketcher.Constraint("Parallel", 9, 12),
    Sketcher.Constraint("Parallel", 11, 14),
    Sketcher.Constraint("Parallel", 14, 17),
    Sketcher.Constraint("Parallel", 17, 20),
    Sketcher.Constraint("Parallel", 20, 23),
    Sketcher.Constraint("Parallel", 23, 26),
    Sketcher.Constraint("Parallel", 26, 29),
    Sketcher.Constraint("Parallel", 29, 32),
    Sketcher.Constraint("Parallel", 32, 35),
    Sketcher.Constraint("Horizontal", 2, 2, 5, 2),
    Sketcher.Constraint("Horizontal", 8, 2, 11, 2),
    Sketcher.Constraint("Vertical", 1, 2, 3, 2),
    Sketcher.Constraint("Vertical", 4, 2, 6, 2),
    Sketcher.Constraint("Vertical", 3, 2, 7, 2),
    Sketcher.Constraint("Vertical", 2, 2, 8, 2),
    Sketcher.Constraint("Vertical", 7, 2, 9, 2),
    Sketcher.Constraint("Angle", 0, Q("120 deg")),
    Sketcher.Constraint("DistanceY", 2, 2, -1, 1, Q("65 mm")),
    Sketcher.Constraint("DistanceY", 8, 2, -1, 1, Q("15 mm")),
    Sketcher.Constraint("DistanceX", 0, 2, 18, 2, Q("213 mm")),
    Sketcher.Constraint("DistanceY", 3, 2, 1, 2, Q("7.3 mm")),
    Sketcher.Constraint("DistanceX", 1, 2, 1, 1, Q("4.214657 mm")),
])
pocket7 = body.newObject("PartDesign::Pocket", "Pocket006")
pocket7.Profile = sketch10
pocket7.Length = 4.4
pocket7.Reversed = True

doc.recompute()
